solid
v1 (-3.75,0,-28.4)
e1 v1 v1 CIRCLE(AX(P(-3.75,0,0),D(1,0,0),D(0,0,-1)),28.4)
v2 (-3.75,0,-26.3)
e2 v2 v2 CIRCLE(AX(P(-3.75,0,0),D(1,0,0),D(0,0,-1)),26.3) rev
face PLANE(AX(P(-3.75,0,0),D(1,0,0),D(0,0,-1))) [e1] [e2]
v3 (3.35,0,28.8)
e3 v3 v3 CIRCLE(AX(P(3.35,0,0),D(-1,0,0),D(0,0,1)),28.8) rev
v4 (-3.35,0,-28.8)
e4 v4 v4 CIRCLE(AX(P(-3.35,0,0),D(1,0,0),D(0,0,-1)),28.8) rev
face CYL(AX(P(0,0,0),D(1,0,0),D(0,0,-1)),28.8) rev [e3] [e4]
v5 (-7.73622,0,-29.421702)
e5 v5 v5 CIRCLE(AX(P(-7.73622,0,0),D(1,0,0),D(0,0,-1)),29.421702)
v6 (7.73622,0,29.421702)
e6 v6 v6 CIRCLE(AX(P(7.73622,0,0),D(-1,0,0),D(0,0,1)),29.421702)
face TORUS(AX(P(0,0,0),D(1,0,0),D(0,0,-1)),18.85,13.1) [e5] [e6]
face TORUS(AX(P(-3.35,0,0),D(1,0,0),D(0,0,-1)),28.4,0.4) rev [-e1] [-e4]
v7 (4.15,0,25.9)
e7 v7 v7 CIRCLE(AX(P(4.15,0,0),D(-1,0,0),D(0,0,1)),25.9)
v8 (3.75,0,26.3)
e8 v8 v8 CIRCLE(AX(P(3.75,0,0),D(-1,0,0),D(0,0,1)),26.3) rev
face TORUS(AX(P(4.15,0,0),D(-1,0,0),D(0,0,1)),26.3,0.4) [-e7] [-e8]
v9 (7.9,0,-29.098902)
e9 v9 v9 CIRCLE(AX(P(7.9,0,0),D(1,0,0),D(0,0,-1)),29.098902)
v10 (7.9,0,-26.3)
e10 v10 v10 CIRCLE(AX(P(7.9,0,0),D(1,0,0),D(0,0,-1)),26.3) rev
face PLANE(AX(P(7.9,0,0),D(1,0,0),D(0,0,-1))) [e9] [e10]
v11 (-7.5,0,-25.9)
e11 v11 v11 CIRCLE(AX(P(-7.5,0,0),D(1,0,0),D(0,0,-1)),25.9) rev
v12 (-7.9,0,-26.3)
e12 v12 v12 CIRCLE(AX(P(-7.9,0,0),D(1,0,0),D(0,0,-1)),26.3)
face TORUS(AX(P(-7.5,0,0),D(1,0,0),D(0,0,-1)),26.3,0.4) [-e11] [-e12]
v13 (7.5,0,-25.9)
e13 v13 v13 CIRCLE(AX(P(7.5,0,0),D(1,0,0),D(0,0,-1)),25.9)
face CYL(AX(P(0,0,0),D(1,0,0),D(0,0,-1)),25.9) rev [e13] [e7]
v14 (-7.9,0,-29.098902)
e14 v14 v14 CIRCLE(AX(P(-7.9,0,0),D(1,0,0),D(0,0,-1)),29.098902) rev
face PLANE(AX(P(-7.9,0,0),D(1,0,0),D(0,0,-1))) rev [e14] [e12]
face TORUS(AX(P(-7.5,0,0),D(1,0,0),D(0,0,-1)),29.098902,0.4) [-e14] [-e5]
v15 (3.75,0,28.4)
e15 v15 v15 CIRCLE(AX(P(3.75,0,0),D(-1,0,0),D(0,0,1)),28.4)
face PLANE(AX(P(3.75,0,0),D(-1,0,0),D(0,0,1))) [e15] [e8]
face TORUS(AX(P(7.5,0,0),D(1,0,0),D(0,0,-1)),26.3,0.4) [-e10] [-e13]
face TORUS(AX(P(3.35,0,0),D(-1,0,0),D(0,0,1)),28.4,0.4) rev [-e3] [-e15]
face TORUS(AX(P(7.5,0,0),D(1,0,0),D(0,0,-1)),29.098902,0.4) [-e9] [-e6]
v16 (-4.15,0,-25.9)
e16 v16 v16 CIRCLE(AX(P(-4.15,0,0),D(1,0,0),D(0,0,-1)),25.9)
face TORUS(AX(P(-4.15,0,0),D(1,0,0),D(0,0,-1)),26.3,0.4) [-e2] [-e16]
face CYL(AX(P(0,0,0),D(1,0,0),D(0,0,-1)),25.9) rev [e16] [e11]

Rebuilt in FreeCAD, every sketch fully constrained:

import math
import FreeCAD as App
import Part
import Sketcher

V = App.Vector
Q = App.Units.Quantity


def edges_at(feature, points):
    """Names of the edges that pass closest to the given points."""
    edges = feature.Shape.Edges
    near = lambda p: min(range(len(edges)), key=lambda i: edges[i].distToShape(Part.Vertex(*p))[0])
    return sorted({f"Edge{near(p) + 1}" for p in points})

doc = App.newDocument("Part")
body = doc.addObject("PartDesign::Body", "Body")

sketch1 = doc.addObject("Sketcher::SketchObject", "Sketch")
body.addObject(sketch1)
sketch1.AttachmentSupport = (doc.XY_Plane, [""])
sketch1.MapMode = "FlatFace"
sketch1.addGeometry(Part.LineSegment(V(7.9, 25.9, 0), V(7.9, 29.3, 0)), False)
sketch1.addGeometry(Part.ArcOfCircle(Part.Circle(V(0, 18.9, 0), V(0, 0, 1), 13.1), math.radians(53), math.radians(127)), False)
sketch1.addGeometry(Part.LineSegment(V(-7.9, 29.3, 0), V(-7.9, 25.9, 0)), False)
sketch1.addGeometry(Part.LineSegment(V(-7.9, 25.9, 0), V(-3.8, 25.9, 0)), False)
sketch1.addGeometry(Part.LineSegment(V(-3.8, 25.9, 0), V(-3.8, 28.8, 0)), False)
sketch1.addGeometry(Part.LineSegment(V(-3.8, 28.8, 0), V(3.8, 28.8, 0)), False)
sketch1.addGeometry(Part.LineSegment(V(3.8, 28.8, 0), V(3.8, 25.9, 0)), False)
sketch1.addGeometry(Part.LineSegment(V(3.8, 25.9, 0), V(7.9, 25.9, 0)), False)
sketch1.addConstraint(Sketcher.Constraint("Coincident", 0, 2, 1, 1))
sketch1.addConstraint(Sketcher.Constraint("Coincident", 1, 2, 2, 1))
sketch1.addConstraint(Sketcher.Constraint("Coincident", 2, 2, 3, 1))
sketch1.addConstraint(Sketcher.Constraint("Coincident", 3, 2, 4, 1))
sketch1.addConstraint(Sketcher.Constraint("Coincident", 4, 2, 5, 1))
sketch1.addConstraint(Sketcher.Constraint("Coincident", 5, 2, 6, 1))
sketch1.addConstraint(Sketcher.Constraint("Coincident", 6, 2, 7, 1))
sketch1.addConstraint(Sketcher.Constraint("Coincident", 7, 2, 0, 1))
sketch1.addConstraint(Sketcher.Constraint("Vertical", 0))
sketch1.addConstraint(Sketcher.Constraint("Vertical", 2))
sketch1.addConstraint(Sketcher.Constraint("Horizontal", 3))
sketch1.addConstraint(Sketcher.Constraint("Vertical", 4))
sketch1.addConstraint(Sketcher.Constraint("Horizontal", 5))
sketch1.addConstraint(Sketcher.Constraint("Vertical", 6))
sketch1.addConstraint(Sketcher.Constraint("Horizontal", 7))
sketch1.addConstraint(Sketcher.Constraint("Symmetric", 0, 2, 1, 2, -2))
sketch1.addConstraint(Sketcher.Constraint("Symmetric", 3, 2, 6, 2, -2))
sketch1.addConstraint(Sketcher.Constraint("Radius", 1, Q("13.1 mm")))
sketch1.addConstraint(Sketcher.Constraint("DistanceX", 5, 1, 5, 2, Q("7.5 mm")))
sketch1.addConstraint(Sketcher.Constraint("DistanceY", 4, 1, 4, 2, Q("2.9 mm")))
sketch1.addConstraint(Sketcher.Constraint("DistanceX", 3, 1, 3, 2, Q("4.15 mm")))
sketch1.addConstraint(Sketcher.Constraint("DistanceY", -1, 1, 2, 2, Q("25.9 mm")))
sketch1.addConstraint(Sketcher.Constraint("DistanceY", -1, 1, 1, 3, Q("18.85 mm")))
revolution = doc.addObject("PartDesign::Revolution", "Revolution")
body.addObject(revolution)
revolution.Profile = sketch1
revolution.ReferenceAxis = (sketch1, ["H_Axis"])
revolution.Angle = 360
doc.recompute()

fillet = doc.addObject("PartDesign::Fillet", "Fillet")
body.addObject(fillet)
fillet.Base = (revolution, edges_at(revolution, [
    (-7.9, -29.3, 0),
    (7.9, -29.3, 0),
    (7.9, -25.9, 0),
    (3.75, -25.9, 0),
    (3.75, -28.8, 0),
    (-3.75, -28.8, 0),
    (-3.75, -25.9, 0),
    (-7.9, -25.9, 0),
]))
fillet.Radius = 0.4

doc.recompute()
